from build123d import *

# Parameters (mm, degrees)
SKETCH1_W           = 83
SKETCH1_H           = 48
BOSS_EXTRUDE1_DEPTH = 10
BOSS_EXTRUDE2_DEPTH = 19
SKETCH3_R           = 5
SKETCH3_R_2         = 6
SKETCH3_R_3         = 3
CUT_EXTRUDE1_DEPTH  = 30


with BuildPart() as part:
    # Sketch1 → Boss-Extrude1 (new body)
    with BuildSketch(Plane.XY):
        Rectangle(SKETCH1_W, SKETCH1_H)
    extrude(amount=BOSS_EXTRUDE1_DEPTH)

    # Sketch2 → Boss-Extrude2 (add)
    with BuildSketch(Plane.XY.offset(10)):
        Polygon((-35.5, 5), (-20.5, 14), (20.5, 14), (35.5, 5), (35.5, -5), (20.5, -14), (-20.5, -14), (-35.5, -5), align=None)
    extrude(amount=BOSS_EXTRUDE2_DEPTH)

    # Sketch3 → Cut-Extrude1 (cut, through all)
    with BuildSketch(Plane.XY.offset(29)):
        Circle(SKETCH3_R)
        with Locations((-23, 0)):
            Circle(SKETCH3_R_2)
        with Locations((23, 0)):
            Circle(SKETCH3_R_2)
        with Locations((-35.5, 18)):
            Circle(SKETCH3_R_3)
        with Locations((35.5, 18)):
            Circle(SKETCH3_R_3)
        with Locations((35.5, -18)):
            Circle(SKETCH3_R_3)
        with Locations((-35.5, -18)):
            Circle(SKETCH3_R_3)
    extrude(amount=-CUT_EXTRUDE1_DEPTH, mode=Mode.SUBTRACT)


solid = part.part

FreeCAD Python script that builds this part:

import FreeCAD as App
import Part
import Sketcher

V = App.Vector

doc = App.newDocument("Part")
body = doc.addObject("PartDesign::Body", "Body")

sketch1 = body.newObject("Sketcher::SketchObject", "Sketch")
sketch1.AttachmentSupport = (doc.getObject("XY_Plane"), [""])
sketch1.MapMode = "FlatFace"
sketch1.addGeometry([
    Part.LineSegment(V(-42, 24, 0), V(-42, -24, 0)),
    Part.LineSegment(V(-42, -24, 0), V(42, -24, 0)),
    Part.LineSegment(V(42, -24, 0), V(42, 24, 0)),
    Part.LineSegment(V(42, 24, 0), V(-42, 24, 0)),
], False)
sketch1.addConstraint([
    Sketcher.Constraint("Coincident", 0, 2, 1, 1),
    Sketcher.Constraint("Coincident", 1, 2, 2, 1),
    Sketcher.Constraint("Coincident", 2, 2, 3, 1),
    Sketcher.Constraint("Coincident", 3, 2, 0, 1),
    Sketcher.Constraint("Vertical", 0),
    Sketcher.Constraint("Horizontal", 1),
    Sketcher.Constraint("Vertical", 2),
    Sketcher.Constraint("Horizontal", 3),
    Sketcher.Constraint("Symmetric", 0, 2, 2, 2, -1, 1),
    Sketcher.Constraint("DistanceX", 1, 1, 1, 2, 83.0),
    Sketcher.Constraint("DistanceY", 0, 2, 0, 1, 48.0),
])
pad1 = body.newObject("PartDesign::Pad", "Pad")
pad1.Profile = sketch1
pad1.Length = 10

sketch2 = body.newObject("Sketcher::SketchObject", "Sketch001")
sketch2.AttachmentSupport = (doc.getObject("XY_Plane"), [""])
sketch2.MapMode = "FlatFace"
sketch2.AttachmentOffset = App.Placement(V(0, 0, 10), App.Rotation())
sketch2.addGeometry([
    Part.LineSegment(V(-20, 14, 0), V(-36, 5, 0)),
    Part.LineSegment(V(-36, 5, 0), V(-36, -5, 0)),
    Part.LineSegment(V(-36, -5, 0), V(-20, -14, 0)),
    Part.LineSegment(V(-20, -14, 0), V(20, -14, 0)),
    Part.LineSegment(V(20, -14, 0), V(36, -5, 0)),
    Part.LineSegment(V(36, -5, 0), V(36, 5, 0)),
    Part.LineSegment(V(36, 5, 0), V(20, 14, 0)),
    Part.LineSegment(V(20, 14, 0), V(-20, 14, 0)),
], False)
sketch2.addConstraint([
    Sketcher.Constraint("Coincident", 0, 2, 1, 1),
    Sketcher.Constraint("Coincident", 1, 2, 2, 1),
    Sketcher.Constraint("Coincident", 2, 2, 3, 1),
    Sketcher.Constraint("Coincident", 3, 2, 4, 1),
    Sketcher.Constraint("Coincident", 4, 2, 5, 1),
    Sketcher.Constraint("Coincident", 5, 2, 6, 1),
    Sketcher.Constraint("Coincident", 6, 2, 7, 1),
    Sketcher.Constraint("Coincident", 7, 2, 0, 1),
    Sketcher.Constraint("Vertical", 1),
    Sketcher.Constraint("Horizontal", 3),
    Sketcher.Constraint("Vertical", 5),
    Sketcher.Constraint("Horizontal", 7),
    Sketcher.Constraint("Symmetric", 0, 2, 4, 2, -1, 1),
    Sketcher.Constraint("Symmetric", 2, 2, 6, 2, -1, 1),
    Sketcher.Constraint("Parallel", 0, 4),
    Sketcher.Constraint("Parallel", 2, 6),
    Sketcher.Constraint("Horizontal", 1, 2, 4, 2),
    Sketcher.Constraint("Vertical", 3, 2, 6, 2),
    Sketcher.Constraint("DistanceX", 3, 1, 3, 2, 41.0),
    Sketcher.Constraint("DistanceY", 1, 2, 1, 1, 10.0),
    Sketcher.Constraint("DistanceY", 2, 2, -1, 1, 14.0),
    Sketcher.Constraint("DistanceX", 1, 2, 2, 2, 15.0),
])
pad2 = body.newObject("PartDesign::Pad", "Pad001")
pad2.Profile = sketch2
pad2.Length = 19

sketch3 = body.newObject("Sketcher::SketchObject", "Sketch002")
sketch3.AttachmentSupport = (doc.getObject("XY_Plane"), [""])
sketch3.MapMode = "FlatFace"
sketch3.AttachmentOffset = App.Placement(V(0, 0, 29), App.Rotation())
sketch3.addGeometry([
    Part.Circle(V(0, 0, 0), V(0, 0, 1), 5),
    Part.Circle(V(-23, 0, 0), V(0, 0, 1), 6),
    Part.Circle(V(23, 0, 0), V(0, 0, 1), 6),
    Part.Circle(V(-35.5, 18, 0), V(0, 0, 1), 3),
    Part.Circle(V(35.5, 18, 0), V(0, 0, 1), 3),
    Part.Circle(V(35.5, -18, 0), V(0, 0, 1), 3),
    Part.Circle(V(-35.5, -18, 0), V(0, 0, 1), 3),
], False)
sketch3.addConstraint([
    Sketcher.Constraint("Coincident", 0, 3, -1, 1),
    Sketcher.Constraint("Equal", 1, 2),
    Sketcher.Constraint("Equal", 3, 4),
    Sketcher.Constraint("Equal", 4, 5),
    Sketcher.Constraint("Equal", 5, 6),
    Sketcher.Constraint("Symmetric", 1, 3, 2, 3, -1, 1),
    Sketcher.Constraint("Symmetric", 3, 3, 5, 3, -1, 1),
    Sketcher.Constraint("Symmetric", 4, 3, 6, 3, -1, 1),
    Sketcher.Constraint("Symmetric", 3, 3, 4, 3, -2),
    Sketcher.Constraint("PointOnObject", 1, 3, -1),
    Sketcher.Constraint("Diameter", 0, 10.0),
    Sketcher.Constraint("Diameter", 1, 12.0),
    Sketcher.Constraint("Diameter", 3, 6.0),
    Sketcher.Constraint("DistanceX", 1, 3, -1, 1, 23.0),
    Sketcher.Constraint("DistanceY", -1, 1, 3, 3, 18.0),
    Sketcher.Constraint("DistanceX", 3, 3, 4, 3, 71.0),
])
pocket1 = body.newObject("PartDesign::Pocket", "Pocket")
pocket1.Profile = sketch3
pocket1.Type = "ThroughAll"

doc.recompute()
